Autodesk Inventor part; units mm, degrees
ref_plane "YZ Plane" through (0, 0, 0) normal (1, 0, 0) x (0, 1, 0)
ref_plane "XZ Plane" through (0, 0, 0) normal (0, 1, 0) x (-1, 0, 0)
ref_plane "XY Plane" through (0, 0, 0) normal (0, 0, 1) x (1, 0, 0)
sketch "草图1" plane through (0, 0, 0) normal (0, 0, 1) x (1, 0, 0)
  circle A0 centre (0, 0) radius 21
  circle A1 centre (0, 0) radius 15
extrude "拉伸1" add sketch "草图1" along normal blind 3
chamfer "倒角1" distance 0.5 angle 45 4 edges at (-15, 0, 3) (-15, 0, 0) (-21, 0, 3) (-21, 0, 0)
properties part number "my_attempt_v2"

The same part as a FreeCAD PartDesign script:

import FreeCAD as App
import Part
import Sketcher


def edges_at(feature, points):
    """Names of the edges that pass closest to the given points."""
    edges = feature.Shape.Edges
    near = lambda p: min(range(len(edges)), key=lambda i: edges[i].distToShape(Part.Vertex(*p))[0])
    return sorted({f"Edge{near(p) + 1}" for p in points})

doc = App.newDocument("Part")
params = doc.addObject("Spreadsheet::Sheet", "Params")
for row, (alias, value) in enumerate([
    ("sketch1_diameter", "42 mm"),
    ("sketch1_diameter2", "30 mm"),
    ("pad1_length", "3 mm"),
    ("chamfer_size", "0.5 mm"),
], start=1):
    params.set(f"A{row}", alias)
    params.set(f"B{row}", "=" + value)
    params.setAlias(f"B{row}", alias)

body = doc.addObject("PartDesign::Body", "Body")

# Sketch on XY plane
sketch1 = body.newObject("Sketcher::SketchObject", "Sketch")
sketch1.AttachmentSupport = (doc.getObject("XY_Plane"), [""])
sketch1.MapMode = "FlatFace"
sketch1.addGeometry([
    Part.Circle(App.Vector(0, 0, 0), App.Vector(0, 0, 1), 21),
    Part.Circle(App.Vector(0, 0, 0), App.Vector(0, 0, 1), 15),
], False)
sketch1.addConstraint([
    Sketcher.Constraint("Coincident", 0, 3, -1, 1),
    Sketcher.Constraint("Coincident", 1, 3, -1, 1),
    Sketcher.Constraint("Diameter", 0, 42.0),
    Sketcher.Constraint("Diameter", 1, 30.0),
])
sketch1.setExpression("Constraints[2]", "Params.sketch1_diameter")
sketch1.setExpression("Constraints[3]", "Params.sketch1_diameter2")
pad1 = body.newObject("PartDesign::Pad", "Pad")
pad1.Profile = sketch1
pad1.setExpression("Length", "Params.pad1_length")
doc.recompute()

chamfer = body.newObject("PartDesign::Chamfer", "Chamfer")
chamfer.Base = (pad1, edges_at(pad1, [
    (-15, 0, 3),
    (-15, 0, 0),
    (-21, 0, 3),
    (-21, 0, 0),
]))
chamfer.setExpression("Size", "Params.chamfer_size")

doc.recompute()
